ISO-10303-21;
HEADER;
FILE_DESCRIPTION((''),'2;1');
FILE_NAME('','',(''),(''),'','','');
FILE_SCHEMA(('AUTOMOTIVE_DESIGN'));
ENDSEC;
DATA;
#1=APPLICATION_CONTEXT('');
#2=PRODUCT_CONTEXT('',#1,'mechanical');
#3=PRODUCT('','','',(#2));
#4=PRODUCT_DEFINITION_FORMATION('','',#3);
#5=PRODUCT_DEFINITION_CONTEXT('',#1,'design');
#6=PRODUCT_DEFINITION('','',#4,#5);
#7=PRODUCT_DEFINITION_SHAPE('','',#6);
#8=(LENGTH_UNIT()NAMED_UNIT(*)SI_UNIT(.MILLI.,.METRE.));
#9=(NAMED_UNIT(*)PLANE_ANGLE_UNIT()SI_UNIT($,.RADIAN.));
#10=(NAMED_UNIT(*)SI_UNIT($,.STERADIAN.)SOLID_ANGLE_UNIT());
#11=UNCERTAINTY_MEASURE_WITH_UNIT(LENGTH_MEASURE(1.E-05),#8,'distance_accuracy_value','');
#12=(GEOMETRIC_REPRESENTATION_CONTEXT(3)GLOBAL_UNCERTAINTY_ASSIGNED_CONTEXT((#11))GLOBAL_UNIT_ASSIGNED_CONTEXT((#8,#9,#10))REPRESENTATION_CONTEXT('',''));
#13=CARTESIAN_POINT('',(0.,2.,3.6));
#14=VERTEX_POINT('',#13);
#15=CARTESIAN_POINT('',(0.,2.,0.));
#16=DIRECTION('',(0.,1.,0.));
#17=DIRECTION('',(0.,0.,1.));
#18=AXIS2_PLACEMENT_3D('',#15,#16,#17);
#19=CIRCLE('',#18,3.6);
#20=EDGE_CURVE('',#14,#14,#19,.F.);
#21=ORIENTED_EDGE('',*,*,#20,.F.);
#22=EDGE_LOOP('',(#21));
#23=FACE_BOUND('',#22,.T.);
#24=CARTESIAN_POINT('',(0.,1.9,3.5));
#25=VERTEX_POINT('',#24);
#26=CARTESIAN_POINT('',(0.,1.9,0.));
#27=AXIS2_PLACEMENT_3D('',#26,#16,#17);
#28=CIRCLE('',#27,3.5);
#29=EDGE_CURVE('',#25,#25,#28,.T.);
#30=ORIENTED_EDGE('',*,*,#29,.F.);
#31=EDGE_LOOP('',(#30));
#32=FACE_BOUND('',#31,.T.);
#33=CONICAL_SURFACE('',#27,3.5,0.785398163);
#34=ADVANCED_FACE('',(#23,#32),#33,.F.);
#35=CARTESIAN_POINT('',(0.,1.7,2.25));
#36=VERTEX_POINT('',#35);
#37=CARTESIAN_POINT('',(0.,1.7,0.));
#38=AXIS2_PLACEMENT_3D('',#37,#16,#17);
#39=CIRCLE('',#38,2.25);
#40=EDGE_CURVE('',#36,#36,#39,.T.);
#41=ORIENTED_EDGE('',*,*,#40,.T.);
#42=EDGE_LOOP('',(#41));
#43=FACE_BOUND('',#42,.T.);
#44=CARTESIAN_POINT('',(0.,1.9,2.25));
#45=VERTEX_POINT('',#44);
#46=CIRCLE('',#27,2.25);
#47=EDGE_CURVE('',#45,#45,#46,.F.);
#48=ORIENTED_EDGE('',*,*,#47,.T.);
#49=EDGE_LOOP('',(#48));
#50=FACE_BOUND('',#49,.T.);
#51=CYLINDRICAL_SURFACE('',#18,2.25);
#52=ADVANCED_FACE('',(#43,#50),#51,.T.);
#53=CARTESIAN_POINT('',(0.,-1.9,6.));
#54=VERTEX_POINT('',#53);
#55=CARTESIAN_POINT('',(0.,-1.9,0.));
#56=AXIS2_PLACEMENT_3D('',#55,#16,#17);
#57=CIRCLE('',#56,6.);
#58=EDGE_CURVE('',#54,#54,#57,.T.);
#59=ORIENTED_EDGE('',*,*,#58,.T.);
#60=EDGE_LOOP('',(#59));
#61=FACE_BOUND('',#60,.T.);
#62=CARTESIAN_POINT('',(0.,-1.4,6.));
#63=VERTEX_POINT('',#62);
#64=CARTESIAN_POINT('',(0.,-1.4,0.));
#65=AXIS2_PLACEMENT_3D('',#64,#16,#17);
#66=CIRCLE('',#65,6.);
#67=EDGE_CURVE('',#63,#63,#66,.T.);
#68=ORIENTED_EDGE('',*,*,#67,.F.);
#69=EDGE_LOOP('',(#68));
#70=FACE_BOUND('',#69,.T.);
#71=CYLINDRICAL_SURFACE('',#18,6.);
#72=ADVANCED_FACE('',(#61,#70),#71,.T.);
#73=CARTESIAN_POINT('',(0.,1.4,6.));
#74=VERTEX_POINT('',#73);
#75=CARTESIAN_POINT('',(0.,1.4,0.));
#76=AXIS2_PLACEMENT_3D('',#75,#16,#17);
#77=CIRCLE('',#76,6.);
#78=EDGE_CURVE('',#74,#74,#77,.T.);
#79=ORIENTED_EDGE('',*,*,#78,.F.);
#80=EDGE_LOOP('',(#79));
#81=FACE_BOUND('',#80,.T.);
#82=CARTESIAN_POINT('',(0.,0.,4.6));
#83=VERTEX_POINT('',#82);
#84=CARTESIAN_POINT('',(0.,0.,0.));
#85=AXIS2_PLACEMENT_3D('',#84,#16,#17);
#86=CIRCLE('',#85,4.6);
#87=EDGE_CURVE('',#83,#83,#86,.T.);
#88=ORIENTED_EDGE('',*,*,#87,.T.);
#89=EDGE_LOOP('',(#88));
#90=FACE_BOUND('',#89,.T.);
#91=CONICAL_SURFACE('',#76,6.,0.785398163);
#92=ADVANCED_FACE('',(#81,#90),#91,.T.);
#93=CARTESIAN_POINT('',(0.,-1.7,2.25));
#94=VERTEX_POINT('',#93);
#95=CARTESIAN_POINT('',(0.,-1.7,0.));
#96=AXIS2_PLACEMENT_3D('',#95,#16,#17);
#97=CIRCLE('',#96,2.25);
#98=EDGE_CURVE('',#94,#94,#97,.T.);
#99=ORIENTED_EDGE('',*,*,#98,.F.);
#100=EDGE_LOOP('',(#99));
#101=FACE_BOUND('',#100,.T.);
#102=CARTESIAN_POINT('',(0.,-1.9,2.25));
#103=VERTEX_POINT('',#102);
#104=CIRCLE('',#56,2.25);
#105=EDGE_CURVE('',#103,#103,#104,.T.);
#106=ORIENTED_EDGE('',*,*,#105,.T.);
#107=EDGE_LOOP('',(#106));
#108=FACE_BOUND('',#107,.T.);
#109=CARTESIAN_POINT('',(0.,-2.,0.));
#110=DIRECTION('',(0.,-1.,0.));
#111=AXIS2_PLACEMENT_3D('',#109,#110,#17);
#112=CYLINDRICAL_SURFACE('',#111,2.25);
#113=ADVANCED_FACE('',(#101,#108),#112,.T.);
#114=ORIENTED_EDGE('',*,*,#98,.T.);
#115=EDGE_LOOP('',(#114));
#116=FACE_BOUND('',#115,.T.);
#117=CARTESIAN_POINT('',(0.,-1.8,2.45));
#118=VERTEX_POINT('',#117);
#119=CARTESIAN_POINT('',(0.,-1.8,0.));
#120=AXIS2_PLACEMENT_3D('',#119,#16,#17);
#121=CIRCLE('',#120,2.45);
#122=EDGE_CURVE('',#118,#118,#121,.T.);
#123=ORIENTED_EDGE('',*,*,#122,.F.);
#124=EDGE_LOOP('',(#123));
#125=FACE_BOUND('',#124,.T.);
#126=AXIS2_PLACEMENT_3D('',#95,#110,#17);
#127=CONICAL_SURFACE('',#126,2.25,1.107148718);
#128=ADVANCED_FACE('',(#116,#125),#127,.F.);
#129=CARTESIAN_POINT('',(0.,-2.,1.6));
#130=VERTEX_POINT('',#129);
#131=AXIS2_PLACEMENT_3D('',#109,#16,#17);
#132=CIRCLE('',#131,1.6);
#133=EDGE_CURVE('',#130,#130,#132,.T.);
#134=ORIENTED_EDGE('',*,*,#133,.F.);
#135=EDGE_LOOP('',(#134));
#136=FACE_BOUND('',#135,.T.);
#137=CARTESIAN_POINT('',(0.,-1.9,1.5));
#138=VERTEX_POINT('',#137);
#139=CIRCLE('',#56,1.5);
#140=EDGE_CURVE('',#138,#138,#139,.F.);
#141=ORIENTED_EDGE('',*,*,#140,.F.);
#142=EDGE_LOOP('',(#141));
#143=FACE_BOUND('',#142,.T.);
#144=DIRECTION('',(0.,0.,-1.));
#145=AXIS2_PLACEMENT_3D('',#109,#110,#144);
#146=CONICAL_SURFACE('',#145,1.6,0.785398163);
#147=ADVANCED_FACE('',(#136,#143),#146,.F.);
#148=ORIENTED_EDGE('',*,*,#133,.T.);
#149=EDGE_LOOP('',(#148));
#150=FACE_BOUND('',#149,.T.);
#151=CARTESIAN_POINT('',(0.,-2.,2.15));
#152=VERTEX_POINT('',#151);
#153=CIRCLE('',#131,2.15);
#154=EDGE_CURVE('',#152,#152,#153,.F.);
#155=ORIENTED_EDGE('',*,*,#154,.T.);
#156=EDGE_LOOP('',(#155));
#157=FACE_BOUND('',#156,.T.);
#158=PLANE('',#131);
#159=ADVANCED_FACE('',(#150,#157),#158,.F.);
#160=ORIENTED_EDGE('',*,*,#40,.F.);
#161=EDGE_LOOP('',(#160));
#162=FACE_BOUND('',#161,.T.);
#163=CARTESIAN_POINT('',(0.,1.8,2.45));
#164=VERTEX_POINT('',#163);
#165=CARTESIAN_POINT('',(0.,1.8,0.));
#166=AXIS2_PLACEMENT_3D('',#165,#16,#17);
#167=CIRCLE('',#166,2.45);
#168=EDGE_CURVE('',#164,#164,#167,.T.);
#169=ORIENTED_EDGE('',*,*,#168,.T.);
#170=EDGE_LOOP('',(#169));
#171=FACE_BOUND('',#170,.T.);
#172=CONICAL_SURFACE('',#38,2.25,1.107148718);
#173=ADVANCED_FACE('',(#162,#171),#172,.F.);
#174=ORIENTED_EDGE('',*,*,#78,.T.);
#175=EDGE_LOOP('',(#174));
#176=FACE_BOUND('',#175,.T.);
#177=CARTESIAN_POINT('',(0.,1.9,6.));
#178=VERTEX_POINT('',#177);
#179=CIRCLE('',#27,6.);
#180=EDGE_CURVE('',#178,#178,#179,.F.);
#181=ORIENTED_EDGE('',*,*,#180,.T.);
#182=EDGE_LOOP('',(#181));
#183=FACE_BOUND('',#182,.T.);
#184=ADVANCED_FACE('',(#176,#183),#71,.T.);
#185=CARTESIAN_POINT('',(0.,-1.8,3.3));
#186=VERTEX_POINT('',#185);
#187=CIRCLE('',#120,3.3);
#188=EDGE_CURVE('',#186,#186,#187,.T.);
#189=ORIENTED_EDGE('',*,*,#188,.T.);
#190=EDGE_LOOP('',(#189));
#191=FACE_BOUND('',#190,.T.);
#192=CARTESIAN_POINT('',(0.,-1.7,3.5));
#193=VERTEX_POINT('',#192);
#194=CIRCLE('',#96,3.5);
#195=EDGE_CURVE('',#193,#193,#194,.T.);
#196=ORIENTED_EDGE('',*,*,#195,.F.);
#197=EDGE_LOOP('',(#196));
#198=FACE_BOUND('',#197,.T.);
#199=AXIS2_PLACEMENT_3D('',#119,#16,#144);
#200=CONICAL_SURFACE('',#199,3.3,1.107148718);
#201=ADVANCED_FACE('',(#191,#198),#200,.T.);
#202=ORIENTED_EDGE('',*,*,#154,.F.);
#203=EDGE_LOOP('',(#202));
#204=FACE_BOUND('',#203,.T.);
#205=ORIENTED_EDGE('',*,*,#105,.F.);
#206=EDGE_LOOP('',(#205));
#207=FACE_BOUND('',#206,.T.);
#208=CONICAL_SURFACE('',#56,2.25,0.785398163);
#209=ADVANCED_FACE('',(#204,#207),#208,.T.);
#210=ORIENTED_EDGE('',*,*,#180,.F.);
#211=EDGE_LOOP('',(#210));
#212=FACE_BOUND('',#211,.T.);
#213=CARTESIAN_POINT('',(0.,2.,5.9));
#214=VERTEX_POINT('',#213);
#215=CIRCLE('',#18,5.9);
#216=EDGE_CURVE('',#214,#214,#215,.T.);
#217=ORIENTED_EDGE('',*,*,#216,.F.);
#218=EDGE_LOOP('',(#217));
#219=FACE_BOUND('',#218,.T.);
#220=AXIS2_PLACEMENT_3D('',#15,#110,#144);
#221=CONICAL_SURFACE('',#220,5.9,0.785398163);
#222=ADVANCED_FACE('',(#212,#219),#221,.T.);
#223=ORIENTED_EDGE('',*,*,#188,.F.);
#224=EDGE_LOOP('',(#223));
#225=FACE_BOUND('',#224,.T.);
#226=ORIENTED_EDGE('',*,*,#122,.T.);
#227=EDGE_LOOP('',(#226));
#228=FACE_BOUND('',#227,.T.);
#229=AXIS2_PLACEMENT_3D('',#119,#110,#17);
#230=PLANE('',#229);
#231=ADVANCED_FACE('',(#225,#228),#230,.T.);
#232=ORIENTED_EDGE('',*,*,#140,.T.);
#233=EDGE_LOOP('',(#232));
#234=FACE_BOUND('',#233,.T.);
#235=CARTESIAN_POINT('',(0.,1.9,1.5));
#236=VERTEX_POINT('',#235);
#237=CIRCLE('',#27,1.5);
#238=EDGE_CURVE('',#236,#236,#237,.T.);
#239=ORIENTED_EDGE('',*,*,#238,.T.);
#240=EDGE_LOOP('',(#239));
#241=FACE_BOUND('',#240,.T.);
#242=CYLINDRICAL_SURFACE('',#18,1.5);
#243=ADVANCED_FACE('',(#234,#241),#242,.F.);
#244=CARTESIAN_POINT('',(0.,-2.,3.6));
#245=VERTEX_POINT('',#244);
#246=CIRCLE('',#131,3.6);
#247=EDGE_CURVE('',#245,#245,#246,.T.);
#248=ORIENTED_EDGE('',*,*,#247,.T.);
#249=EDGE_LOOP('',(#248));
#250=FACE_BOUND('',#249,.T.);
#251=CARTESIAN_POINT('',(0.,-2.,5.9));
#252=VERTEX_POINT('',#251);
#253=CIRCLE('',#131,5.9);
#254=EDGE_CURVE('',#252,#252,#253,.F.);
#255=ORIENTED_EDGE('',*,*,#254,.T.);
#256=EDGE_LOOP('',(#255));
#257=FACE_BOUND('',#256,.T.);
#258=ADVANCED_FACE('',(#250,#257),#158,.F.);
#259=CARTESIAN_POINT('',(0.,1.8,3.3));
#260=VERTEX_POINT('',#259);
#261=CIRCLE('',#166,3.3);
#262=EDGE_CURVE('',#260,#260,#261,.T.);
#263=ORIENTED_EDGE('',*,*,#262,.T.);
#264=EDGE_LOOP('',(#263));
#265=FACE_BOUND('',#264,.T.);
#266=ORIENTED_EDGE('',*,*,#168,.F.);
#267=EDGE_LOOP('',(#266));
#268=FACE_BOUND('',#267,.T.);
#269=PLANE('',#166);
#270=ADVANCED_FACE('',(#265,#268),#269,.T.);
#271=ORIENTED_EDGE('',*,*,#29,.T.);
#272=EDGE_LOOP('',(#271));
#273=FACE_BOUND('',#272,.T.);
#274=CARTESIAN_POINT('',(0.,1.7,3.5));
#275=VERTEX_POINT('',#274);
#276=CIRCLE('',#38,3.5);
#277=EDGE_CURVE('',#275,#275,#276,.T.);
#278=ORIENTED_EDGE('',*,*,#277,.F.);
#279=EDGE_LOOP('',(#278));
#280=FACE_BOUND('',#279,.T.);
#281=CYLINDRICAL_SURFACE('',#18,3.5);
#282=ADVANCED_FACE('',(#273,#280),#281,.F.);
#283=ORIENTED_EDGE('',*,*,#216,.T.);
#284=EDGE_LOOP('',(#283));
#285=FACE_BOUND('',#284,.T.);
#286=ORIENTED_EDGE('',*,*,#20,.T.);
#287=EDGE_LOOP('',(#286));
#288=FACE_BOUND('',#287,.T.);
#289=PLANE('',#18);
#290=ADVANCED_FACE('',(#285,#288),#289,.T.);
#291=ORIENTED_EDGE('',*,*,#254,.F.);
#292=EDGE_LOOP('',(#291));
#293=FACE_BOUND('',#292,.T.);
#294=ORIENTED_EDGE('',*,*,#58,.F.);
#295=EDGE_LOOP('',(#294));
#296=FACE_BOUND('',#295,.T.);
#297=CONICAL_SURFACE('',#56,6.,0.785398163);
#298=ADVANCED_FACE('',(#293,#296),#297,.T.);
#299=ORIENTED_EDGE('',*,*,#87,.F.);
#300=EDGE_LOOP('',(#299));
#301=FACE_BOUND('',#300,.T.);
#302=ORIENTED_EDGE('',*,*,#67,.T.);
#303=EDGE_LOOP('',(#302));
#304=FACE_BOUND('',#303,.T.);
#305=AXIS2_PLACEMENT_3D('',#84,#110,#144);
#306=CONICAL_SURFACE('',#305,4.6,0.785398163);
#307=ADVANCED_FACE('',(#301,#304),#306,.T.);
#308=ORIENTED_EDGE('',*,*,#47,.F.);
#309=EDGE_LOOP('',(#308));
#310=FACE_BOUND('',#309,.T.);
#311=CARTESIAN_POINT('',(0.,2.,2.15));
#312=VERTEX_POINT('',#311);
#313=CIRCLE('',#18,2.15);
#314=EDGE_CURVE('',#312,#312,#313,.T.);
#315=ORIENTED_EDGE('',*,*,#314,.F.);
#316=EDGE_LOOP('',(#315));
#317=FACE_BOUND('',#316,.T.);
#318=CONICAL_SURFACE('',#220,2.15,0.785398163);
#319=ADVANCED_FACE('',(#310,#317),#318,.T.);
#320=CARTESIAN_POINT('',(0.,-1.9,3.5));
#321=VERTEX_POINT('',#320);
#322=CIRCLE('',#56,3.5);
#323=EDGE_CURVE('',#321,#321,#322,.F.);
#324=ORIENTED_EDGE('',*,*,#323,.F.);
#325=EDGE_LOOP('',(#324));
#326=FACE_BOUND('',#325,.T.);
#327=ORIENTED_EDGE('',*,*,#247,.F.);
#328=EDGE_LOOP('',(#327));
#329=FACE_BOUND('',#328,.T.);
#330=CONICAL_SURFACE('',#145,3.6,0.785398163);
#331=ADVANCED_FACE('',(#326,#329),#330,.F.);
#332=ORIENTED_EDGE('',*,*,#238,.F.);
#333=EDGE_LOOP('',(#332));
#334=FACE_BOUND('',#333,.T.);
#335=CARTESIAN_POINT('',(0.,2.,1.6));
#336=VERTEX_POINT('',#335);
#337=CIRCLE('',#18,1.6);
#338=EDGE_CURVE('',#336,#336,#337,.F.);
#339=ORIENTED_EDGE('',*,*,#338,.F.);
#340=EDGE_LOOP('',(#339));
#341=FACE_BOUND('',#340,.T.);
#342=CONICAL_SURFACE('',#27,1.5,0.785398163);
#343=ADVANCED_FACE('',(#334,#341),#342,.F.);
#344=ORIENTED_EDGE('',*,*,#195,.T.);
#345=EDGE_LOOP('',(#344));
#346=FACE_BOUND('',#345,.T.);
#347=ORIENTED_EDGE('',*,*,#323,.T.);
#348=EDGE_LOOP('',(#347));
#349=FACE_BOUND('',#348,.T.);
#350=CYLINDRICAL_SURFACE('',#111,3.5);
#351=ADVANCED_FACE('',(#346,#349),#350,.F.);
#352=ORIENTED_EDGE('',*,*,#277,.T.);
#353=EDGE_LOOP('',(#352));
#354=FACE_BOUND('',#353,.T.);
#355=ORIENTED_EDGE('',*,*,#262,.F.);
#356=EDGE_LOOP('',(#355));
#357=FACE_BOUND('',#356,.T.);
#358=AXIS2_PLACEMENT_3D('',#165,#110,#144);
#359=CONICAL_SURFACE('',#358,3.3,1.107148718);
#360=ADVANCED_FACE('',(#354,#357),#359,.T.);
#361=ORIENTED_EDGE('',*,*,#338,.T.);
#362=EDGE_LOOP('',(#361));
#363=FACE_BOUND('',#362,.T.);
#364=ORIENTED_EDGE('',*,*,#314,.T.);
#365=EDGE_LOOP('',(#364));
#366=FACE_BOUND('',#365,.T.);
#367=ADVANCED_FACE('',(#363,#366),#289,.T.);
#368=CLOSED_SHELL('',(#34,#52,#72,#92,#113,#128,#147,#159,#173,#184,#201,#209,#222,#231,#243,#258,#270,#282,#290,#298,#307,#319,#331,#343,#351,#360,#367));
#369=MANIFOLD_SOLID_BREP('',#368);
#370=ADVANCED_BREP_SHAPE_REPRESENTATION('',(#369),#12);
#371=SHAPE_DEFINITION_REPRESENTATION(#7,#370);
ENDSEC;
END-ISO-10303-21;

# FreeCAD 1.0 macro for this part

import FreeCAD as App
import Part
import Sketcher
from FreeCAD import Vector
Q = App.Units.Quantity


def edges_at(feature, points):
    """Names of the edges that pass closest to the given points."""
    edges = feature.Shape.Edges
    near = lambda p: min(range(len(edges)), key=lambda i: edges[i].distToShape(Part.Vertex(*p))[0])
    return sorted({f"Edge{near(p) + 1}" for p in points})

doc = App.newDocument("Part")
body = doc.addObject("PartDesign::Body", "Body")

sketch1 = body.newObject("Sketcher::SketchObject", "Sketch")
sketch1.AttachmentSupport = (doc.getObject("YZ_Plane"), [""])
sketch1.MapMode = "FlatFace"
sketch1.addGeometry([
    Part.LineSegment(Vector(0, -4.6, 0), Vector(1.4, -6, 0)),
    Part.LineSegment(Vector(1.4, -6, 0), Vector(2, -6, 0)),
    Part.LineSegment(Vector(2, -6, 0), Vector(2, -1.5, 0)),
    Part.LineSegment(Vector(2, -1.5, 0), Vector(-2, -1.5, 0)),
    Part.LineSegment(Vector(-2, -1.5, 0), Vector(-2, -6, 0)),
    Part.LineSegment(Vector(-2, -6, 0), Vector(-1.4, -6, 0)),
    Part.LineSegment(Vector(-1.4, -6, 0), Vector(0, -4.6, 0)),
], False)
sketch1.addConstraint([
    Sketcher.Constraint("Coincident", 0, 2, 1, 1),
    Sketcher.Constraint("Coincident", 1, 2, 2, 1),
    Sketcher.Constraint("Coincident", 2, 2, 3, 1),
    Sketcher.Constraint("Coincident", 3, 2, 4, 1),
    Sketcher.Constraint("Coincident", 4, 2, 5, 1),
    Sketcher.Constraint("Coincident", 5, 2, 6, 1),
    Sketcher.Constraint("Coincident", 6, 2, 0, 1),
    Sketcher.Constraint("Horizontal", 1),
    Sketcher.Constraint("Vertical", 2),
    Sketcher.Constraint("Horizontal", 3),
    Sketcher.Constraint("Vertical", 4),
    Sketcher.Constraint("Horizontal", 5),
    Sketcher.Constraint("Symmetric", 1, 2, 4, 2, -2),
    Sketcher.Constraint("PointOnObject", 6, 2, -2),
    Sketcher.Constraint("Perpendicular", 0, 6),
    Sketcher.Constraint("Equal", 1, 5),
    Sketcher.Constraint("DistanceX", 3, 2, 3, 1, Q("4 mm")),
    Sketcher.Constraint("DistanceX", 1, 1, 1, 2, Q("0.6 mm")),
    Sketcher.Constraint("DistanceY", 2, 1, 2, 2, Q("4.5 mm")),
    Sketcher.Constraint("DistanceY", 0, 2, -1, 1, Q("6 mm")),
])
revolution = body.newObject("PartDesign::Revolution", "Revolution")
revolution.Profile = sketch1
revolution.ReferenceAxis = (sketch1, ["H_Axis"])
revolution.Angle = 360

sketch2 = body.newObject("Sketcher::SketchObject", "Sketch001")
sketch2.AttachmentSupport = (doc.getObject("YZ_Plane"), [""])
sketch2.MapMode = "FlatFace"
sketch2.addGeometry([
    Part.LineSegment(Vector(1.8, -3.3, 0), Vector(1.7, -3.5, 0)),
    Part.LineSegment(Vector(1.7, -3.5, 0), Vector(2, -3.5, 0)),
    Part.LineSegment(Vector(2, -3.5, 0), Vector(2, -2.25, 0)),
    Part.LineSegment(Vector(2, -2.25, 0), Vector(1.7, -2.25, 0)),
    Part.LineSegment(Vector(1.7, -2.25, 0), Vector(1.8, -2.45, 0)),
    Part.LineSegment(Vector(1.8, -2.45, 0), Vector(1.8, -3.3, 0)),
], False)
sketch2.addConstraint([
    Sketcher.Constraint("Coincident", 0, 2, 1, 1),
    Sketcher.Constraint("Coincident", 1, 2, 2, 1),
    Sketcher.Constraint("Coincident", 2, 2, 3, 1),
    Sketcher.Constraint("Coincident", 3, 2, 4, 1),
    Sketcher.Constraint("Coincident", 4, 2, 5, 1),
    Sketcher.Constraint("Coincident", 5, 2, 0, 1),
    Sketcher.Constraint("Horizontal", 1),
    Sketcher.Constraint("Vertical", 2),
    Sketcher.Constraint("Horizontal", 3),
    Sketcher.Constraint("Vertical", 5),
    Sketcher.Constraint("Vertical", 0, 2, 3, 2),
    Sketcher.Constraint("Equal", 0, 4),
    Sketcher.Constraint("DistanceX", 1, 1, 1, 2, Q("0.3 mm")),
    Sketcher.Constraint("DistanceX", -1, 1, 1, 2, Q("2 mm")),
    Sketcher.Constraint("DistanceY", 2, 1, 2, 2, Q("1.25 mm")),
    Sketcher.Constraint("DistanceY", 5, 2, 5, 1, Q("0.85 mm")),
    Sketcher.Constraint("DistanceY", 0, 2, -1, 1, Q("3.5 mm")),
    Sketcher.Constraint("DistanceX", -1, 1, 4, 2, Q("1.8 mm")),
])
groove = body.newObject("PartDesign::Groove", "Groove")
groove.Profile = sketch2
groove.ReferenceAxis = (sketch2, ["H_Axis"])
groove.Angle = 360
doc.recompute()

mirrored = body.newObject("PartDesign::Mirrored", "Mirrored")
mirrored.Originals = [groove]
mirrored.MirrorPlane = (doc.getObject("XZ_Plane"), [""])
body.Tip = mirrored
doc.recompute()

chamfer = body.newObject("PartDesign::Chamfer", "Chamfer")
chamfer.Base = (mirrored, edges_at(mirrored, [
    (0, 2, 3.5),
    (0, 2, 2.25),
    (0, -2, 3.5),
    (0, -2, 2.25),
    (0, 2, 6),
    (0, -2, 6),
    (0, -2, 1.5),
    (0, 2, 1.5),
]))
chamfer.Size = 0.1

doc.recompute()
